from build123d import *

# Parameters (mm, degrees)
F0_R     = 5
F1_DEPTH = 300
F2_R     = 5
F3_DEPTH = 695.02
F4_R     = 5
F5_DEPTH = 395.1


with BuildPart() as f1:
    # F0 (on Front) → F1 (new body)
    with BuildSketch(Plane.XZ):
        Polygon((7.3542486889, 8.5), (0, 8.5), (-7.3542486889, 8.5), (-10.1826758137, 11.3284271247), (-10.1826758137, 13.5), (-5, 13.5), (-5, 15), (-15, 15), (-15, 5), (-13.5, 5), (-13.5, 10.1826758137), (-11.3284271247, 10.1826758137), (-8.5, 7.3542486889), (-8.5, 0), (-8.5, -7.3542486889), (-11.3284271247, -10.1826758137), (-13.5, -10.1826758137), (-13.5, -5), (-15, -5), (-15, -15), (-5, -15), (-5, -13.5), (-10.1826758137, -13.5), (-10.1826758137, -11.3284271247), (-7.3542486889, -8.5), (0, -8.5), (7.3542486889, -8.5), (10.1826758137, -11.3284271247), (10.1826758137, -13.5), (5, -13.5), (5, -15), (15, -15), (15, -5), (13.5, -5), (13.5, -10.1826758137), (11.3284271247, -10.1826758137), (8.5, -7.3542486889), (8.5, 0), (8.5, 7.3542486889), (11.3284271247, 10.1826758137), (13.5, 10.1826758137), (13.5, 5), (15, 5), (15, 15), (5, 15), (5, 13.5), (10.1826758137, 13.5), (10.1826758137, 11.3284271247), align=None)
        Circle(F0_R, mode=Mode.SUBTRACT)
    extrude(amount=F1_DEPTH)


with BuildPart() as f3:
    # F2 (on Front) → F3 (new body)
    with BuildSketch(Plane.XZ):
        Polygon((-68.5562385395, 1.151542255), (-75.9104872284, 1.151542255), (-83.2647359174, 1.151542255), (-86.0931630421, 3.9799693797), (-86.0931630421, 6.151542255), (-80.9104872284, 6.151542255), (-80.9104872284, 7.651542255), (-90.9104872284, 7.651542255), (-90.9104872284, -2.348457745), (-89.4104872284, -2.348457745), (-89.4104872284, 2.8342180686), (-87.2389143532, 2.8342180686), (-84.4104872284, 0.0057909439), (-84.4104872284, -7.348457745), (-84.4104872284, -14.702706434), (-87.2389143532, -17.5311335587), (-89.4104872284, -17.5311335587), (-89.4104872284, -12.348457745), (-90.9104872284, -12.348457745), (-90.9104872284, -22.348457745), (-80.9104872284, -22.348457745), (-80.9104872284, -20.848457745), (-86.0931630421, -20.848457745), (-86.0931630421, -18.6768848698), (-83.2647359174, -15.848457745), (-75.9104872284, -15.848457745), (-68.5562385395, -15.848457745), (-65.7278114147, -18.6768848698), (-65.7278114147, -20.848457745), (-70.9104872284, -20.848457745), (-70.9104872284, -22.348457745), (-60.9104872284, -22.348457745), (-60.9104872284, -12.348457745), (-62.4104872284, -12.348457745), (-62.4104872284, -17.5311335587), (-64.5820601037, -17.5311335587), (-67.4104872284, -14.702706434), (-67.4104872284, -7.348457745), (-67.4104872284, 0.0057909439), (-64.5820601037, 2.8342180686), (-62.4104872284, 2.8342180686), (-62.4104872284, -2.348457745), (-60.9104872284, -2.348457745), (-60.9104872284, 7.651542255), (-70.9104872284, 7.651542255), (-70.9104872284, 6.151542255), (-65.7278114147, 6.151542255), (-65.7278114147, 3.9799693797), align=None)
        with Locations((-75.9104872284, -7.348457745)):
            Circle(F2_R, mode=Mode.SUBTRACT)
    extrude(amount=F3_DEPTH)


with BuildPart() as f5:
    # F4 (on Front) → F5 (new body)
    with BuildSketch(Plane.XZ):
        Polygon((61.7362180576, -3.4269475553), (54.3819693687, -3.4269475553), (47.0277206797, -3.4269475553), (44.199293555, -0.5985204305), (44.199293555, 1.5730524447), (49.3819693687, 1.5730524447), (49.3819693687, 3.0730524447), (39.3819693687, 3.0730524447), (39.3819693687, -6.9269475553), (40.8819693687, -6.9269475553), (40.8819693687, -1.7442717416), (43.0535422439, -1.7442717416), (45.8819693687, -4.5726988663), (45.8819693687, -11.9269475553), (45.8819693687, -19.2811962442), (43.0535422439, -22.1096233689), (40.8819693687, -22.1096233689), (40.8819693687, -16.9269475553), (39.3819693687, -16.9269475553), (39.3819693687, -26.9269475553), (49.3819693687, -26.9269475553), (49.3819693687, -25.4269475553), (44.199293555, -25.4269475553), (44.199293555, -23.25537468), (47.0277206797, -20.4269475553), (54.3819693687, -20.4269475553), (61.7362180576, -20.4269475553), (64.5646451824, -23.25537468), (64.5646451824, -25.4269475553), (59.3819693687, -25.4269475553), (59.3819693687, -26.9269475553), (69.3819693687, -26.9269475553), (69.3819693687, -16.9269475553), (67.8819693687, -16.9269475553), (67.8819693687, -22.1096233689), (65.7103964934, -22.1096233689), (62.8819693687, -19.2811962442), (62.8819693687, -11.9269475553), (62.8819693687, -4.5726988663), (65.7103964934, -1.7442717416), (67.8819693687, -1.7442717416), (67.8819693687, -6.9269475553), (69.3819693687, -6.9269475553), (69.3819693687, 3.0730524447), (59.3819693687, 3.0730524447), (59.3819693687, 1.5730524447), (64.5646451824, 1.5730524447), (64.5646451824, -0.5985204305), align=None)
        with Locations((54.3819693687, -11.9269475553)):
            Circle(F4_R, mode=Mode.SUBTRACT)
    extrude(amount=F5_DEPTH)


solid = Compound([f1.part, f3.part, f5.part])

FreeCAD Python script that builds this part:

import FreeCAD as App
import Part
import Sketcher
Q = App.Units.Quantity

doc = App.newDocument("Part")
body = doc.addObject("PartDesign::Body", "Body")

# Sketch on XZ plane
sketch1 = body.newObject("Sketcher::SketchObject", "Sketch")
sketch1.AttachmentSupport = (doc.getObject("XZ_Plane"), [""])
sketch1.MapMode = "FlatFace"
sketch1.addGeometry([
    Part.LineSegment(App.Vector(7.354249, 8.5, 0), App.Vector(-7.354249, 8.5, 0)),  # 0
    Part.LineSegment(App.Vector(-7.354249, 8.5, 0), App.Vector(-10.182676, 11.328427, 0)),  # 1
    Part.LineSegment(App.Vector(-10.182676, 11.328427, 0), App.Vector(-10.182676, 13.5, 0)),  # 2
    Part.LineSegment(App.Vector(-10.182676, 13.5, 0), App.Vector(-5, 13.5, 0)),  # 3
    Part.LineSegment(App.Vector(-5, 13.5, 0), App.Vector(-5, 15, 0)),  # 4
    Part.LineSegment(App.Vector(-5, 15, 0), App.Vector(-15, 15, 0)),  # 5
    Part.LineSegment(App.Vector(-15, 15, 0), App.Vector(-15, 5, 0)),  # 6
    Part.LineSegment(App.Vector(-15, 5, 0), App.Vector(-13.5, 5, 0)),  # 7
    Part.LineSegment(App.Vector(-13.5, 5, 0), App.Vector(-13.5, 10.182676, 0)),  # 8
    Part.LineSegment(App.Vector(-13.5, 10.182676, 0), App.Vector(-11.328427, 10.182676, 0)),  # 9
    Part.LineSegment(App.Vector(-11.328427, 10.182676, 0), App.Vector(-8.5, 7.354249, 0)),  # 10
    Part.LineSegment(App.Vector(-8.5, 7.354249, 0), App.Vector(-8.5, -7.354249, 0)),  # 11
    Part.LineSegment(App.Vector(-8.5, -7.354249, 0), App.Vector(-11.328427, -10.182676, 0)),  # 12
    Part.LineSegment(App.Vector(-11.328427, -10.182676, 0), App.Vector(-13.5, -10.182676, 0)),  # 13
    Part.LineSegment(App.Vector(-13.5, -10.182676, 0), App.Vector(-13.5, -5, 0)),  # 14
    Part.LineSegment(App.Vector(-13.5, -5, 0), App.Vector(-15, -5, 0)),  # 15
    Part.LineSegment(App.Vector(-15, -5, 0), App.Vector(-15, -15, 0)),  # 16
    Part.LineSegment(App.Vector(-15, -15, 0), App.Vector(-5, -15, 0)),  # 17
    Part.LineSegment(App.Vector(-5, -15, 0), App.Vector(-5, -13.5, 0)),  # 18
    Part.LineSegment(App.Vector(-5, -13.5, 0), App.Vector(-10.182676, -13.5, 0)),  # 19
    Part.LineSegment(App.Vector(-10.182676, -13.5, 0), App.Vector(-10.182676, -11.328427, 0)),  # 20
    Part.LineSegment(App.Vector(-10.182676, -11.328427, 0), App.Vector(-7.354249, -8.5, 0)),  # 21
    Part.LineSegment(App.Vector(-7.354249, -8.5, 0), App.Vector(7.354249, -8.5, 0)),  # 22
    Part.LineSegment(App.Vector(7.354249, -8.5, 0), App.Vector(10.182676, -11.328427, 0)),  # 23
    Part.LineSegment(App.Vector(10.182676, -11.328427, 0), App.Vector(10.182676, -13.5, 0)),  # 24
    Part.LineSegment(App.Vector(10.182676, -13.5, 0), App.Vector(5, -13.5, 0)),  # 25
    Part.LineSegment(App.Vector(5, -13.5, 0), App.Vector(5, -15, 0)),  # 26
    Part.LineSegment(App.Vector(5, -15, 0), App.Vector(15, -15, 0)),  # 27
    Part.LineSegment(App.Vector(15, -15, 0), App.Vector(15, -5, 0)),  # 28
    Part.LineSegment(App.Vector(15, -5, 0), App.Vector(13.5, -5, 0)),  # 29
    Part.LineSegment(App.Vector(13.5, -5, 0), App.Vector(13.5, -10.182676, 0)),  # 30
    Part.LineSegment(App.Vector(13.5, -10.182676, 0), App.Vector(11.328427, -10.182676, 0)),  # 31
    Part.LineSegment(App.Vector(11.328427, -10.182676, 0), App.Vector(8.5, -7.354249, 0)),  # 32
    Part.LineSegment(App.Vector(8.5, -7.354249, 0), App.Vector(8.5, 7.354249, 0)),  # 33
    Part.LineSegment(App.Vector(8.5, 7.354249, 0), App.Vector(11.328427, 10.182676, 0)),  # 34
    Part.LineSegment(App.Vector(11.328427, 10.182676, 0), App.Vector(13.5, 10.182676, 0)),  # 35
    Part.LineSegment(App.Vector(13.5, 10.182676, 0), App.Vector(13.5, 5, 0)),  # 36
    Part.LineSegment(App.Vector(13.5, 5, 0), App.Vector(15, 5, 0)),  # 37
    Part.LineSegment(App.Vector(15, 5, 0), App.Vector(15, 15, 0)),  # 38
    Part.LineSegment(App.Vector(15, 15, 0), App.Vector(5, 15, 0)),  # 39
    Part.LineSegment(App.Vector(5, 15, 0), App.Vector(5, 13.5, 0)),  # 40
    Part.LineSegment(App.Vector(5, 13.5, 0), App.Vector(10.182676, 13.5, 0)),  # 41
    Part.LineSegment(App.Vector(10.182676, 13.5, 0), App.Vector(10.182676, 11.328427, 0)),  # 42
    Part.LineSegment(App.Vector(10.182676, 11.328427, 0), App.Vector(7.354249, 8.5, 0)),  # 43
    Part.Circle(App.Vector(0, 0, 0), App.Vector(0, 0, 1), 5),  # 44
], False)
sketch1.addConstraint([
    Sketcher.Constraint("Coincident", 0, 2, 1, 1),
    Sketcher.Constraint("Coincident", 1, 2, 2, 1),
    Sketcher.Constraint("Coincident", 2, 2, 3, 1),
    Sketcher.Constraint("Coincident", 3, 2, 4, 1),
    Sketcher.Constraint("Coincident", 4, 2, 5, 1),
    Sketcher.Constraint("Coincident", 5, 2, 6, 1),
    Sketcher.Constraint("Coincident", 6, 2, 7, 1),
    Sketcher.Constraint("Coincident", 7, 2, 8, 1),
    Sketcher.Constraint("Coincident", 8, 2, 9, 1),
    Sketcher.Constraint("Coincident", 9, 2, 10, 1),
    Sketcher.Constraint("Coincident", 10, 2, 11, 1),
    Sketcher.Constraint("Coincident", 11, 2, 12, 1),
    Sketcher.Constraint("Coincident", 12, 2, 13, 1),
    Sketcher.Constraint("Coincident", 13, 2, 14, 1),
    Sketcher.Constraint("Coincident", 14, 2, 15, 1),
    Sketcher.Constraint("Coincident", 15, 2, 16, 1),
    Sketcher.Constraint("Coincident", 16, 2, 17, 1),
    Sketcher.Constraint("Coincident", 17, 2, 18, 1),
    Sketcher.Constraint("Coincident", 18, 2, 19, 1),
    Sketcher.Constraint("Coincident", 19, 2, 20, 1),
    Sketcher.Constraint("Coincident", 20, 2, 21, 1),
    Sketcher.Constraint("Coincident", 21, 2, 22, 1),
    Sketcher.Constraint("Coincident", 22, 2, 23, 1),
    Sketcher.Constraint("Coincident", 23, 2, 24, 1),
    Sketcher.Constraint("Coincident", 24, 2, 25, 1),
    Sketcher.Constraint("Coincident", 25, 2, 26, 1),
    Sketcher.Constraint("Coincident", 26, 2, 27, 1),
    Sketcher.Constraint("Coincident", 27, 2, 28, 1),
    Sketcher.Constraint("Coincident", 28, 2, 29, 1),
    Sketcher.Constraint("Coincident", 29, 2, 30, 1),
    Sketcher.Constraint("Coincident", 30, 2, 31, 1),
    Sketcher.Constraint("Coincident", 31, 2, 32, 1),
    Sketcher.Constraint("Coincident", 32, 2, 33, 1),
    Sketcher.Constraint("Coincident", 33, 2, 34, 1),
    Sketcher.Constraint("Coincident", 34, 2, 35, 1),
    Sketcher.Constraint("Coincident", 35, 2, 36, 1),
    Sketcher.Constraint("Coincident", 36, 2, 37, 1),
    Sketcher.Constraint("Coincident", 37, 2, 38, 1),
    Sketcher.Constraint("Coincident", 38, 2, 39, 1),
    Sketcher.Constraint("Coincident", 39, 2, 40, 1),
    Sketcher.Constraint("Coincident", 40, 2, 41, 1),
    Sketcher.Constraint("Coincident", 41, 2, 42, 1),
    Sketcher.Constraint("Coincident", 42, 2, 43, 1),
    Sketcher.Constraint("Coincident", 43, 2, 0, 1),
    Sketcher.Constraint("Horizontal", 0),
    Sketcher.Constraint("Vertical", 2),
    Sketcher.Constraint("Horizontal", 3),
    Sketcher.Constraint("Vertical", 4),
    Sketcher.Constraint("Horizontal", 5),
    Sketcher.Constraint("Vertical", 6),
    Sketcher.Constraint("Horizontal", 7),
    Sketcher.Constraint("Vertical", 8),
    Sketcher.Constraint("Horizontal", 9),
    Sketcher.Constraint("Vertical", 11),
    Sketcher.Constraint("Horizontal", 13),
    Sketcher.Constraint("Vertical", 14),
    Sketcher.Constraint("Horizontal", 15),
    Sketcher.Constraint("Vertical", 16),
    Sketcher.Constraint("Horizontal", 17),
    Sketcher.Constraint("Vertical", 18),
    Sketcher.Constraint("Horizontal", 19),
    Sketcher.Constraint("Vertical", 20),
    Sketcher.Constraint("Horizontal", 22),
    Sketcher.Constraint("Vertical", 24),
    Sketcher.Constraint("Horizontal", 25),
    Sketcher.Constraint("Vertical", 26),
    Sketcher.Constraint("Horizontal", 27),
    Sketcher.Constraint("Vertical", 28),
    Sketcher.Constraint("Horizontal", 29),
    Sketcher.Constraint("Vertical", 30),
    Sketcher.Constraint("Horizontal", 31),
    Sketcher.Constraint("Vertical", 33),
    Sketcher.Constraint("Horizontal", 35),
    Sketcher.Constraint("Vertical", 36),
    Sketcher.Constraint("Horizontal", 37),
    Sketcher.Constraint("Vertical", 38),
    Sketcher.Constraint("Horizontal", 39),
    Sketcher.Constraint("Vertical", 40),
    Sketcher.Constraint("Horizontal", 41),
    Sketcher.Constraint("Vertical", 42),
    Sketcher.Constraint("Coincident", 44, 3, -1, 1),
    Sketcher.Constraint("Symmetric", 0, 2, 22, 2, -1, 1),
    Sketcher.Constraint("Symmetric", 1, 2, 23, 2, -1, 1),
    Sketcher.Constraint("Symmetric", 3, 2, 25, 2, -1, 1),
    Sketcher.Constraint("Symmetric", 5, 2, 27, 2, -1, 1),
    Sketcher.Constraint("Symmetric", 7, 2, 29, 2, -1, 1),
    Sketcher.Constraint("Symmetric", 9, 2, 31, 2, -1, 1),
    Sketcher.Constraint("Symmetric", 10, 2, 32, 2, -1, 1),
    Sketcher.Constraint("Symmetric", 12, 2, 34, 2, -1, 1),
    Sketcher.Constraint("Symmetric", 14, 2, 36, 2, -1, 1),
    Sketcher.Constraint("Symmetric", 16, 2, 38, 2, -1, 1),
    Sketcher.Constraint("Symmetric", 18, 2, 40, 2, -1, 1),
    Sketcher.Constraint("Symmetric", 20, 2, 42, 2, -1, 1),
    Sketcher.Constraint("Symmetric", 20, 2, 23, 2, -2),
    Sketcher.Constraint("Symmetric", 18, 2, 25, 2, -2),
    Sketcher.Constraint("Symmetric", 16, 2, 27, 2, -2),
    Sketcher.Constraint("Symmetric", 14, 2, 29, 2, -2),
    Sketcher.Constraint("Symmetric", 12, 2, 31, 2, -2),
    Sketcher.Constraint("Parallel", 1, 10),
    Sketcher.Constraint("Perpendicular", 10, 12),
    Sketcher.Constraint("Parallel", 12, 21),
    Sketcher.Constraint("Perpendicular", 32, 34),
    Sketcher.Constraint("Parallel", 34, 43),
    Sketcher.Constraint("Horizontal", 11, 2, 32, 2),
    Sketcher.Constraint("Equal", 35, 2),
    Sketcher.Constraint("Equal", 37, 4),
    Sketcher.Constraint("Equal", 39, 6),
    Sketcher.Constraint("Equal", 41, 8),
    Sketcher.Constraint("Equal", 22, 11),
    Sketcher.Constraint("Equal", 1, 10),
    Sketcher.Constraint("Diameter", 44, Q("10 mm")),
    Sketcher.Constraint("DistanceX", 5, 2, 5, 1, Q("10 mm")),
    Sketcher.Constraint("Distance", 1, Q("4 mm")),
    Sketcher.Constraint("DistanceX", 7, 1, 7, 2, Q("1.5 mm")),
    Sketcher.Constraint("DistanceX", 3, 2, -1, 1, Q("5 mm")),
    Sketcher.Constraint("DistanceY", 0, 2, 2, 2, Q("5 mm")),
    Sketcher.Constraint("DistanceX", 0, 2, 0, 1, Q("14.708497 mm")),
])
pad1 = body.newObject("PartDesign::Pad", "Pad")
pad1.Profile = sketch1
pad1.Length = 300
body2 = doc.addObject("PartDesign::Body", "Body001")

# Sketch on XZ plane
sketch2 = body2.newObject("Sketcher::SketchObject", "Sketch001")
sketch2.AttachmentSupport = (doc.getObject("XZ_Plane001"), [""])
sketch2.MapMode = "FlatFace"
sketch2.addGeometry([
    Part.LineSegment(App.Vector(-68.556239, 1.151542, 0), App.Vector(-83.264736, 1.151542, 0)),  # 0
    Part.LineSegment(App.Vector(-83.264736, 1.151542, 0), App.Vector(-86.093163, 3.979969, 0)),  # 1
    Part.LineSegment(App.Vector(-86.093163, 3.979969, 0), App.Vector(-86.093163, 6.151542, 0)),  # 2
    Part.LineSegment(App.Vector(-86.093163, 6.151542, 0), App.Vector(-80.910487, 6.151542, 0)),  # 3
    Part.LineSegment(App.Vector(-80.910487, 6.151542, 0), App.Vector(-80.910487, 7.651542, 0)),  # 4
    Part.LineSegment(App.Vector(-80.910487, 7.651542, 0), App.Vector(-90.910487, 7.651542, 0)),  # 5
    Part.LineSegment(App.Vector(-90.910487, 7.651542, 0), App.Vector(-90.910487, -2.348458, 0)),  # 6
    Part.LineSegment(App.Vector(-90.910487, -2.348458, 0), App.Vector(-89.410487, -2.348458, 0)),  # 7
    Part.LineSegment(App.Vector(-89.410487, -2.348458, 0), App.Vector(-89.410487, 2.834218, 0)),  # 8
    Part.LineSegment(App.Vector(-89.410487, 2.834218, 0), App.Vector(-87.238914, 2.834218, 0)),  # 9
    Part.LineSegment(App.Vector(-87.238914, 2.834218, 0), App.Vector(-84.410487, 0.005791, 0)),  # 10
    Part.LineSegment(App.Vector(-84.410487, 0.005791, 0), App.Vector(-84.410487, -14.702706, 0)),  # 11
    Part.LineSegment(App.Vector(-84.410487, -14.702706, 0), App.Vector(-87.238914, -17.531134, 0)),  # 12
    Part.LineSegment(App.Vector(-87.238914, -17.531134, 0), App.Vector(-89.410487, -17.531134, 0)),  # 13
    Part.LineSegment(App.Vector(-89.410487, -17.531134, 0), App.Vector(-89.410487, -12.348458, 0)),  # 14
    Part.LineSegment(App.Vector(-89.410487, -12.348458, 0), App.Vector(-90.910487, -12.348458, 0)),  # 15
    Part.LineSegment(App.Vector(-90.910487, -12.348458, 0), App.Vector(-90.910487, -22.348458, 0)),  # 16
    Part.LineSegment(App.Vector(-90.910487, -22.348458, 0), App.Vector(-80.910487, -22.348458, 0)),  # 17
    Part.LineSegment(App.Vector(-80.910487, -22.348458, 0), App.Vector(-80.910487, -20.848458, 0)),  # 18
    Part.LineSegment(App.Vector(-80.910487, -20.848458, 0), App.Vector(-86.093163, -20.848458, 0)),  # 19
    Part.LineSegment(App.Vector(-86.093163, -20.848458, 0), App.Vector(-86.093163, -18.676885, 0)),  # 20
    Part.LineSegment(App.Vector(-86.093163, -18.676885, 0), App.Vector(-83.264736, -15.848458, 0)),  # 21
    Part.LineSegment(App.Vector(-83.264736, -15.848458, 0), App.Vector(-68.556239, -15.848458, 0)),  # 22
    Part.LineSegment(App.Vector(-68.556239, -15.848458, 0), App.Vector(-65.727811, -18.676885, 0)),  # 23
    Part.LineSegment(App.Vector(-65.727811, -18.676885, 0), App.Vector(-65.727811, -20.848458, 0)),  # 24
    Part.LineSegment(App.Vector(-65.727811, -20.848458, 0), App.Vector(-70.910487, -20.848458, 0)),  # 25
    Part.LineSegment(App.Vector(-70.910487, -20.848458, 0), App.Vector(-70.910487, -22.348458, 0)),  # 26
    Part.LineSegment(App.Vector(-70.910487, -22.348458, 0), App.Vector(-60.910487, -22.348458, 0)),  # 27
    Part.LineSegment(App.Vector(-60.910487, -22.348458, 0), App.Vector(-60.910487, -12.348458, 0)),  # 28
    Part.LineSegment(App.Vector(-60.910487, -12.348458, 0), App.Vector(-62.410487, -12.348458, 0)),  # 29
    Part.LineSegment(App.Vector(-62.410487, -12.348458, 0), App.Vector(-62.410487, -17.531134, 0)),  # 30
    Part.LineSegment(App.Vector(-62.410487, -17.531134, 0), App.Vector(-64.58206, -17.531134, 0)),  # 31
    Part.LineSegment(App.Vector(-64.58206, -17.531134, 0), App.Vector(-67.410487, -14.702706, 0)),  # 32
    Part.LineSegment(App.Vector(-67.410487, -14.702706, 0), App.Vector(-67.410487, 0.005791, 0)),  # 33
    Part.LineSegment(App.Vector(-67.410487, 0.005791, 0), App.Vector(-64.58206, 2.834218, 0)),  # 34
    Part.LineSegment(App.Vector(-64.58206, 2.834218, 0), App.Vector(-62.410487, 2.834218, 0)),  # 35
    Part.LineSegment(App.Vector(-62.410487, 2.834218, 0), App.Vector(-62.410487, -2.348458, 0)),  # 36
    Part.LineSegment(App.Vector(-62.410487, -2.348458, 0), App.Vector(-60.910487, -2.348458, 0)),  # 37
    Part.LineSegment(App.Vector(-60.910487, -2.348458, 0), App.Vector(-60.910487, 7.651542, 0)),  # 38
    Part.LineSegment(App.Vector(-60.910487, 7.651542, 0), App.Vector(-70.910487, 7.651542, 0)),  # 39
    Part.LineSegment(App.Vector(-70.910487, 7.651542, 0), App.Vector(-70.910487, 6.151542, 0)),  # 40
    Part.LineSegment(App.Vector(-70.910487, 6.151542, 0), App.Vector(-65.727811, 6.151542, 0)),  # 41
    Part.LineSegment(App.Vector(-65.727811, 6.151542, 0), App.Vector(-65.727811, 3.979969, 0)),  # 42
    Part.LineSegment(App.Vector(-65.727811, 3.979969, 0), App.Vector(-68.556239, 1.151542, 0)),  # 43
    Part.Circle(App.Vector(-75.910487, -7.348458, 0), App.Vector(0, 0, 1), 5),  # 44
], False)
sketch2.addConstraint([
    Sketcher.Constraint("Coincident", 0, 2, 1, 1),
    Sketcher.Constraint("Coincident", 1, 2, 2, 1),
    Sketcher.Constraint("Coincident", 2, 2, 3, 1),
    Sketcher.Constraint("Coincident", 3, 2, 4, 1),
    Sketcher.Constraint("Coincident", 4, 2, 5, 1),
    Sketcher.Constraint("Coincident", 5, 2, 6, 1),
    Sketcher.Constraint("Coincident", 6, 2, 7, 1),
    Sketcher.Constraint("Coincident", 7, 2, 8, 1),
    Sketcher.Constraint("Coincident", 8, 2, 9, 1),
    Sketcher.Constraint("Coincident", 9, 2, 10, 1),
    Sketcher.Constraint("Coincident", 10, 2, 11, 1),
    Sketcher.Constraint("Coincident", 11, 2, 12, 1),
    Sketcher.Constraint("Coincident", 12, 2, 13, 1),
    Sketcher.Constraint("Coincident", 13, 2, 14, 1),
    Sketcher.Constraint("Coincident", 14, 2, 15, 1),
    Sketcher.Constraint("Coincident", 15, 2, 16, 1),
    Sketcher.Constraint("Coincident", 16, 2, 17, 1),
    Sketcher.Constraint("Coincident", 17, 2, 18, 1),
    Sketcher.Constraint("Coincident", 18, 2, 19, 1),
    Sketcher.Constraint("Coincident", 19, 2, 20, 1),
    Sketcher.Constraint("Coincident", 20, 2, 21, 1),
    Sketcher.Constraint("Coincident", 21, 2, 22, 1),
    Sketcher.Constraint("Coincident", 22, 2, 23, 1),
    Sketcher.Constraint("Coincident", 23, 2, 24, 1),
    Sketcher.Constraint("Coincident", 24, 2, 25, 1),
    Sketcher.Constraint("Coincident", 25, 2, 26, 1),
    Sketcher.Constraint("Coincident", 26, 2, 27, 1),
    Sketcher.Constraint("Coincident", 27, 2, 28, 1),
    Sketcher.Constraint("Coincident", 28, 2, 29, 1),
    Sketcher.Constraint("Coincident", 29, 2, 30, 1),
    Sketcher.Constraint("Coincident", 30, 2, 31, 1),
    Sketcher.Constraint("Coincident", 31, 2, 32, 1),
    Sketcher.Constraint("Coincident", 32, 2, 33, 1),
    Sketcher.Constraint("Coincident", 33, 2, 34, 1),
    Sketcher.Constraint("Coincident", 34, 2, 35, 1),
    Sketcher.Constraint("Coincident", 35, 2, 36, 1),
    Sketcher.Constraint("Coincident", 36, 2, 37, 1),
    Sketcher.Constraint("Coincident", 37, 2, 38, 1),
    Sketcher.Constraint("Coincident", 38, 2, 39, 1),
    Sketcher.Constraint("Coincident", 39, 2, 40, 1),
    Sketcher.Constraint("Coincident", 40, 2, 41, 1),
    Sketcher.Constraint("Coincident", 41, 2, 42, 1),
    Sketcher.Constraint("Coincident", 42, 2, 43, 1),
    Sketcher.Constraint("Coincident", 43, 2, 0, 1),
    Sketcher.Constraint("Horizontal", 0),
    Sketcher.Constraint("Vertical", 2),
    Sketcher.Constraint("Horizontal", 3),
    Sketcher.Constraint("Vertical", 4),
    Sketcher.Constraint("Horizontal", 5),
    Sketcher.Constraint("Vertical", 6),
    Sketcher.Constraint("Horizontal", 7),
    Sketcher.Constraint("Vertical", 8),
    Sketcher.Constraint("Horizontal", 9),
    Sketcher.Constraint("Vertical", 11),
    Sketcher.Constraint("Horizontal", 13),
    Sketcher.Constraint("Vertical", 14),
    Sketcher.Constraint("Horizontal", 15),
    Sketcher.Constraint("Vertical", 16),
    Sketcher.Constraint("Horizontal", 17),
    Sketcher.Constraint("Vertical", 18),
    Sketcher.Constraint("Horizontal", 19),
    Sketcher.Constraint("Vertical", 20),
    Sketcher.Constraint("Horizontal", 22),
    Sketcher.Constraint("Vertical", 24),
    Sketcher.Constraint("Horizontal", 25),
    Sketcher.Constraint("Vertical", 26),
    Sketcher.Constraint("Horizontal", 27),
    Sketcher.Constraint("Vertical", 28),
    Sketcher.Constraint("Horizontal", 29),
    Sketcher.Constraint("Vertical", 30),
    Sketcher.Constraint("Horizontal", 31),
    Sketcher.Constraint("Vertical", 33),
    Sketcher.Constraint("Horizontal", 35),
    Sketcher.Constraint("Vertical", 36),
    Sketcher.Constraint("Horizontal", 37),
    Sketcher.Constraint("Vertical", 38),
    Sketcher.Constraint("Horizontal", 39),
    Sketcher.Constraint("Vertical", 40),
    Sketcher.Constraint("Horizontal", 41),
    Sketcher.Constraint("Vertical", 42),
    Sketcher.Constraint("Parallel", 1, 10),
    Sketcher.Constraint("Perpendicular", 10, 12),
    Sketcher.Constraint("Parallel", 12, 21),
    Sketcher.Constraint("Perpendicular", 21, 23),
    Sketcher.Constraint("Parallel", 23, 32),
    Sketcher.Constraint("Perpendicular", 32, 34),
    Sketcher.Constraint("Parallel", 34, 43),
    Sketcher.Constraint("Horizontal", 20, 2, 23, 2),
    Sketcher.Constraint("Horizontal", 19, 2, 24, 2),
    Sketcher.Constraint("Horizontal", 17, 2, 26, 2),
    Sketcher.Constraint("Horizontal", 15, 2, 28, 2),
    Sketcher.Constraint("Horizontal", 13, 2, 30, 2),
    Sketcher.Constraint("Horizontal", 11, 2, 32, 2),
    Sketcher.Constraint("Horizontal", 10, 2, 33, 2),
    Sketcher.Constraint("Horizontal", 9, 2, 34, 2),
    Sketcher.Constraint("Horizontal", 7, 2, 36, 2),
    Sketcher.Constraint("Horizontal", 5, 2, 38, 2),
    Sketcher.Constraint("Horizontal", 3, 2, 40, 2),
    Sketcher.Constraint("Horizontal", 1, 2, 42, 2),
    Sketcher.Constraint("Vertical", 9, 2, 12, 2),
    Sketcher.Constraint("Vertical", 8, 2, 13, 2),
    Sketcher.Constraint("Vertical", 6, 2, 15, 2),
    Sketcher.Constraint("Vertical", 4, 2, 17, 2),
    Sketcher.Constraint("Vertical", 2, 2, 19, 2),
    Sketcher.Constraint("Vertical", 0, 2, 21, 2),
    Sketcher.Constraint("Vertical", 31, 2, 34, 2),
    Sketcher.Constraint("Vertical", 30, 2, 35, 2),
    Sketcher.Constraint("Vertical", 28, 2, 37, 2),
    Sketcher.Constraint("Vertical", 26, 2, 39, 2),
    Sketcher.Constraint("Vertical", 24, 2, 41, 2),
    Sketcher.Constraint("Equal", 19, 25),
    Sketcher.Constraint("Equal", 17, 27),
    Sketcher.Constraint("Equal", 15, 29),
    Sketcher.Constraint("Equal", 13, 31),
    Sketcher.Constraint("Equal", 35, 2),
    Sketcher.Constraint("Equal", 37, 4),
    Sketcher.Constraint("Equal", 39, 6),
    Sketcher.Constraint("Equal", 41, 8),
    Sketcher.Constraint("Equal", 22, 11),
    Sketcher.Constraint("Equal", 8, 14),
    Sketcher.Constraint("Equal", 6, 16),
    Sketcher.Constraint("Equal", 4, 18),
    Sketcher.Constraint("Equal", 2, 20),
    Sketcher.Constraint("Equal", 1, 10),
    Sketcher.Constraint("Diameter", 44, Q("10 mm")),
    Sketcher.Constraint("DistanceX", 5, 2, 5, 1, Q("10 mm")),
    Sketcher.Constraint("Distance", 1, Q("4 mm")),
    Sketcher.Constraint("DistanceX", 7, 1, 7, 2, Q("1.5 mm")),
    Sketcher.Constraint("DistanceY", 0, 2, 2, 2, Q("5 mm")),
    Sketcher.Constraint("DistanceX", 3, 2, 44, 3, Q("5 mm")),
    Sketcher.Constraint("DistanceY", 44, 3, 4, 2, Q("15 mm")),
    Sketcher.Constraint("DistanceY", 14, 2, 7, 2, Q("10 mm")),
    Sketcher.Constraint("DistanceX", 0, 2, 0, 1, Q("14.708497 mm")),
    Sketcher.Constraint("DistanceY", -1, 1, 1, 2, Q("3.979969 mm")),
    Sketcher.Constraint("DistanceX", 22, 2, -1, 1, Q("68.556239 mm")),
])
pad2 = body2.newObject("PartDesign::Pad", "Pad001")
pad2.Profile = sketch2
pad2.Length = 695.02
body3 = doc.addObject("PartDesign::Body", "Body002")

# Sketch on XZ plane
sketch3 = body3.newObject("Sketcher::SketchObject", "Sketch002")
sketch3.AttachmentSupport = (doc.getObject("XZ_Plane002"), [""])
sketch3.MapMode = "FlatFace"
sketch3.addGeometry([
    Part.LineSegment(App.Vector(61.736218, -3.426948, 0), App.Vector(47.027721, -3.426948, 0)),  # 0
    Part.LineSegment(App.Vector(47.027721, -3.426948, 0), App.Vector(44.199294, -0.59852, 0)),  # 1
    Part.LineSegment(App.Vector(44.199294, -0.59852, 0), App.Vector(44.199294, 1.573052, 0)),  # 2
    Part.LineSegment(App.Vector(44.199294, 1.573052, 0), App.Vector(49.381969, 1.573052, 0)),  # 3
    Part.LineSegment(App.Vector(49.381969, 1.573052, 0), App.Vector(49.381969, 3.073052, 0)),  # 4
    Part.LineSegment(App.Vector(49.381969, 3.073052, 0), App.Vector(39.381969, 3.073052, 0)),  # 5
    Part.LineSegment(App.Vector(39.381969, 3.073052, 0), App.Vector(39.381969, -6.926948, 0)),  # 6
    Part.LineSegment(App.Vector(39.381969, -6.926948, 0), App.Vector(40.881969, -6.926948, 0)),  # 7
    Part.LineSegment(App.Vector(40.881969, -6.926948, 0), App.Vector(40.881969, -1.744272, 0)),  # 8
    Part.LineSegment(App.Vector(40.881969, -1.744272, 0), App.Vector(43.053542, -1.744272, 0)),  # 9
    Part.LineSegment(App.Vector(43.053542, -1.744272, 0), App.Vector(45.881969, -4.572699, 0)),  # 10
    Part.LineSegment(App.Vector(45.881969, -4.572699, 0), App.Vector(45.881969, -19.281196, 0)),  # 11
    Part.LineSegment(App.Vector(45.881969, -19.281196, 0), App.Vector(43.053542, -22.109623, 0)),  # 12
    Part.LineSegment(App.Vector(43.053542, -22.109623, 0), App.Vector(40.881969, -22.109623, 0)),  # 13
    Part.LineSegment(App.Vector(40.881969, -22.109623, 0), App.Vector(40.881969, -16.926948, 0)),  # 14
    Part.LineSegment(App.Vector(40.881969, -16.926948, 0), App.Vector(39.381969, -16.926948, 0)),  # 15
    Part.LineSegment(App.Vector(39.381969, -16.926948, 0), App.Vector(39.381969, -26.926948, 0)),  # 16
    Part.LineSegment(App.Vector(39.381969, -26.926948, 0), App.Vector(49.381969, -26.926948, 0)),  # 17
    Part.LineSegment(App.Vector(49.381969, -26.926948, 0), App.Vector(49.381969, -25.426948, 0)),  # 18
    Part.LineSegment(App.Vector(49.381969, -25.426948, 0), App.Vector(44.199294, -25.426948, 0)),  # 19
    Part.LineSegment(App.Vector(44.199294, -25.426948, 0), App.Vector(44.199294, -23.255375, 0)),  # 20
    Part.LineSegment(App.Vector(44.199294, -23.255375, 0), App.Vector(47.027721, -20.426948, 0)),  # 21
    Part.LineSegment(App.Vector(47.027721, -20.426948, 0), App.Vector(61.736218, -20.426948, 0)),  # 22
    Part.LineSegment(App.Vector(61.736218, -20.426948, 0), App.Vector(64.564645, -23.255375, 0)),  # 23
    Part.LineSegment(App.Vector(64.564645, -23.255375, 0), App.Vector(64.564645, -25.426948, 0)),  # 24
    Part.LineSegment(App.Vector(64.564645, -25.426948, 0), App.Vector(59.381969, -25.426948, 0)),  # 25
    Part.LineSegment(App.Vector(59.381969, -25.426948, 0), App.Vector(59.381969, -26.926948, 0)),  # 26
    Part.LineSegment(App.Vector(59.381969, -26.926948, 0), App.Vector(69.381969, -26.926948, 0)),  # 27
    Part.LineSegment(App.Vector(69.381969, -26.926948, 0), App.Vector(69.381969, -16.926948, 0)),  # 28
    Part.LineSegment(App.Vector(69.381969, -16.926948, 0), App.Vector(67.881969, -16.926948, 0)),  # 29
    Part.LineSegment(App.Vector(67.881969, -16.926948, 0), App.Vector(67.881969, -22.109623, 0)),  # 30
    Part.LineSegment(App.Vector(67.881969, -22.109623, 0), App.Vector(65.710396, -22.109623, 0)),  # 31
    Part.LineSegment(App.Vector(65.710396, -22.109623, 0), App.Vector(62.881969, -19.281196, 0)),  # 32
    Part.LineSegment(App.Vector(62.881969, -19.281196, 0), App.Vector(62.881969, -4.572699, 0)),  # 33
    Part.LineSegment(App.Vector(62.881969, -4.572699, 0), App.Vector(65.710396, -1.744272, 0)),  # 34
    Part.LineSegment(App.Vector(65.710396, -1.744272, 0), App.Vector(67.881969, -1.744272, 0)),  # 35
    Part.LineSegment(App.Vector(67.881969, -1.744272, 0), App.Vector(67.881969, -6.926948, 0)),  # 36
    Part.LineSegment(App.Vector(67.881969, -6.926948, 0), App.Vector(69.381969, -6.926948, 0)),  # 37
    Part.LineSegment(App.Vector(69.381969, -6.926948, 0), App.Vector(69.381969, 3.073052, 0)),  # 38
    Part.LineSegment(App.Vector(69.381969, 3.073052, 0), App.Vector(59.381969, 3.073052, 0)),  # 39
    Part.LineSegment(App.Vector(59.381969, 3.073052, 0), App.Vector(59.381969, 1.573052, 0)),  # 40
    Part.LineSegment(App.Vector(59.381969, 1.573052, 0), App.Vector(64.564645, 1.573052, 0)),  # 41
    Part.LineSegment(App.Vector(64.564645, 1.573052, 0), App.Vector(64.564645, -0.59852, 0)),  # 42
    Part.LineSegment(App.Vector(64.564645, -0.59852, 0), App.Vector(61.736218, -3.426948, 0)),  # 43
    Part.Circle(App.Vector(54.381969, -11.926948, 0), App.Vector(0, 0, 1), 5),  # 44
], False)
sketch3.addConstraint([
    Sketcher.Constraint("Coincident", 0, 2, 1, 1),
    Sketcher.Constraint("Coincident", 1, 2, 2, 1),
    Sketcher.Constraint("Coincident", 2, 2, 3, 1),
    Sketcher.Constraint("Coincident", 3, 2, 4, 1),
    Sketcher.Constraint("Coincident", 4, 2, 5, 1),
    Sketcher.Constraint("Coincident", 5, 2, 6, 1),
    Sketcher.Constraint("Coincident", 6, 2, 7, 1),
    Sketcher.Constraint("Coincident", 7, 2, 8, 1),
    Sketcher.Constraint("Coincident", 8, 2, 9, 1),
    Sketcher.Constraint("Coincident", 9, 2, 10, 1),
    Sketcher.Constraint("Coincident", 10, 2, 11, 1),
    Sketcher.Constraint("Coincident", 11, 2, 12, 1),
    Sketcher.Constraint("Coincident", 12, 2, 13, 1),
    Sketcher.Constraint("Coincident", 13, 2, 14, 1),
    Sketcher.Constraint("Coincident", 14, 2, 15, 1),
    Sketcher.Constraint("Coincident", 15, 2, 16, 1),
    Sketcher.Constraint("Coincident", 16, 2, 17, 1),
    Sketcher.Constraint("Coincident", 17, 2, 18, 1),
    Sketcher.Constraint("Coincident", 18, 2, 19, 1),
    Sketcher.Constraint("Coincident", 19, 2, 20, 1),
    Sketcher.Constraint("Coincident", 20, 2, 21, 1),
    Sketcher.Constraint("Coincident", 21, 2, 22, 1),
    Sketcher.Constraint("Coincident", 22, 2, 23, 1),
    Sketcher.Constraint("Coincident", 23, 2, 24, 1),
    Sketcher.Constraint("Coincident", 24, 2, 25, 1),
    Sketcher.Constraint("Coincident", 25, 2, 26, 1),
    Sketcher.Constraint("Coincident", 26, 2, 27, 1),
    Sketcher.Constraint("Coincident", 27, 2, 28, 1),
    Sketcher.Constraint("Coincident", 28, 2, 29, 1),
    Sketcher.Constraint("Coincident", 29, 2, 30, 1),
    Sketcher.Constraint("Coincident", 30, 2, 31, 1),
    Sketcher.Constraint("Coincident", 31, 2, 32, 1),
    Sketcher.Constraint("Coincident", 32, 2, 33, 1),
    Sketcher.Constraint("Coincident", 33, 2, 34, 1),
    Sketcher.Constraint("Coincident", 34, 2, 35, 1),
    Sketcher.Constraint("Coincident", 35, 2, 36, 1),
    Sketcher.Constraint("Coincident", 36, 2, 37, 1),
    Sketcher.Constraint("Coincident", 37, 2, 38, 1),
    Sketcher.Constraint("Coincident", 38, 2, 39, 1),
    Sketcher.Constraint("Coincident", 39, 2, 40, 1),
    Sketcher.Constraint("Coincident", 40, 2, 41, 1),
    Sketcher.Constraint("Coincident", 41, 2, 42, 1),
    Sketcher.Constraint("Coincident", 42, 2, 43, 1),
    Sketcher.Constraint("Coincident", 43, 2, 0, 1),
    Sketcher.Constraint("Horizontal", 0),
    Sketcher.Constraint("Vertical", 2),
    Sketcher.Constraint("Horizontal", 3),
    Sketcher.Constraint("Vertical", 4),
    Sketcher.Constraint("Horizontal", 5),
    Sketcher.Constraint("Vertical", 6),
    Sketcher.Constraint("Horizontal", 7),
    Sketcher.Constraint("Vertical", 8),
    Sketcher.Constraint("Horizontal", 9),
    Sketcher.Constraint("Vertical", 11),
    Sketcher.Constraint("Horizontal", 13),
    Sketcher.Constraint("Vertical", 14),
    Sketcher.Constraint("Horizontal", 15),
    Sketcher.Constraint("Vertical", 16),
    Sketcher.Constraint("Horizontal", 17),
    Sketcher.Constraint("Vertical", 18),
    Sketcher.Constraint("Horizontal", 19),
    Sketcher.Constraint("Vertical", 20),
    Sketcher.Constraint("Horizontal", 22),
    Sketcher.Constraint("Vertical", 24),
    Sketcher.Constraint("Horizontal", 25),
    Sketcher.Constraint("Vertical", 26),
    Sketcher.Constraint("Horizontal", 27),
    Sketcher.Constraint("Vertical", 28),
    Sketcher.Constraint("Horizontal", 29),
    Sketcher.Constraint("Vertical", 30),
    Sketcher.Constraint("Horizontal", 31),
    Sketcher.Constraint("Vertical", 33),
    Sketcher.Constraint("Horizontal", 35),
    Sketcher.Constraint("Vertical", 36),
    Sketcher.Constraint("Horizontal", 37),
    Sketcher.Constraint("Vertical", 38),
    Sketcher.Constraint("Horizontal", 39),
    Sketcher.Constraint("Vertical", 40),
    Sketcher.Constraint("Horizontal", 41),
    Sketcher.Constraint("Vertical", 42),
    Sketcher.Constraint("Parallel", 1, 10),
    Sketcher.Constraint("Perpendicular", 10, 12),
    Sketcher.Constraint("Parallel", 12, 21),
    Sketcher.Constraint("Perpendicular", 21, 23),
    Sketcher.Constraint("Parallel", 23, 32),
    Sketcher.Constraint("Perpendicular", 32, 34),
    Sketcher.Constraint("Parallel", 34, 43),
    Sketcher.Constraint("Horizontal", 20, 2, 23, 2),
    Sketcher.Constraint("Horizontal", 19, 2, 24, 2),
    Sketcher.Constraint("Horizontal", 17, 2, 26, 2),
    Sketcher.Constraint("Horizontal", 15, 2, 28, 2),
    Sketcher.Constraint("Horizontal", 13, 2, 30, 2),
    Sketcher.Constraint("Horizontal", 11, 2, 32, 2),
    Sketcher.Constraint("Horizontal", 10, 2, 33, 2),
    Sketcher.Constraint("Horizontal", 9, 2, 34, 2),
    Sketcher.Constraint("Horizontal", 7, 2, 36, 2),
    Sketcher.Constraint("Horizontal", 5, 2, 38, 2),
    Sketcher.Constraint("Horizontal", 3, 2, 40, 2),
    Sketcher.Constraint("Horizontal", 1, 2, 42, 2),
    Sketcher.Constraint("Vertical", 9, 2, 12, 2),
    Sketcher.Constraint("Vertical", 8, 2, 13, 2),
    Sketcher.Constraint("Vertical", 6, 2, 15, 2),
    Sketcher.Constraint("Vertical", 4, 2, 17, 2),
    Sketcher.Constraint("Vertical", 2, 2, 19, 2),
    Sketcher.Constraint("Vertical", 0, 2, 21, 2),
    Sketcher.Constraint("Vertical", 31, 2, 34, 2),
    Sketcher.Constraint("Vertical", 30, 2, 35, 2),
    Sketcher.Constraint("Vertical", 28, 2, 37, 2),
    Sketcher.Constraint("Vertical", 26, 2, 39, 2),
    Sketcher.Constraint("Vertical", 24, 2, 41, 2),
    Sketcher.Constraint("Equal", 19, 25),
    Sketcher.Constraint("Equal", 17, 27),
    Sketcher.Constraint("Equal", 15, 29),
    Sketcher.Constraint("Equal", 13, 31),
    Sketcher.Constraint("Equal", 35, 2),
    Sketcher.Constraint("Equal", 37, 4),
    Sketcher.Constraint("Equal", 39, 6),
    Sketcher.Constraint("Equal", 41, 8),
    Sketcher.Constraint("Equal", 22, 11),
    Sketcher.Constraint("Equal", 8, 14),
    Sketcher.Constraint("Equal", 6, 16),
    Sketcher.Constraint("Equal", 4, 18),
    Sketcher.Constraint("Equal", 2, 20),
    Sketcher.Constraint("Equal", 1, 10),
    Sketcher.Constraint("Diameter", 44, Q("10 mm")),
    Sketcher.Constraint("DistanceX", 5, 2, 5, 1, Q("10 mm")),
    Sketcher.Constraint("Distance", 1, Q("4 mm")),
    Sketcher.Constraint("DistanceX", 7, 1, 7, 2, Q("1.5 mm")),
    Sketcher.Constraint("DistanceY", 0, 2, 2, 2, Q("5 mm")),
    Sketcher.Constraint("DistanceX", 3, 2, 44, 3, Q("5 mm")),
    Sketcher.Constraint("DistanceY", 44, 3, 4, 2, Q("15 mm")),
    Sketcher.Constraint("DistanceY", 14, 2, 7, 2, Q("10 mm")),
    Sketcher.Constraint("DistanceY", 10, 2, -1, 1, Q("4.572699 mm")),
    Sketcher.Constraint("DistanceX", 0, 2, 0, 1, Q("14.708497 mm")),
    Sketcher.Constraint("DistanceX", -1, 1, 44, 3, Q("54.381969 mm")),
])
pad3 = body3.newObject("PartDesign::Pad", "Pad002")
pad3.Profile = sketch3
pad3.Length = 395.1

doc.recompute()
